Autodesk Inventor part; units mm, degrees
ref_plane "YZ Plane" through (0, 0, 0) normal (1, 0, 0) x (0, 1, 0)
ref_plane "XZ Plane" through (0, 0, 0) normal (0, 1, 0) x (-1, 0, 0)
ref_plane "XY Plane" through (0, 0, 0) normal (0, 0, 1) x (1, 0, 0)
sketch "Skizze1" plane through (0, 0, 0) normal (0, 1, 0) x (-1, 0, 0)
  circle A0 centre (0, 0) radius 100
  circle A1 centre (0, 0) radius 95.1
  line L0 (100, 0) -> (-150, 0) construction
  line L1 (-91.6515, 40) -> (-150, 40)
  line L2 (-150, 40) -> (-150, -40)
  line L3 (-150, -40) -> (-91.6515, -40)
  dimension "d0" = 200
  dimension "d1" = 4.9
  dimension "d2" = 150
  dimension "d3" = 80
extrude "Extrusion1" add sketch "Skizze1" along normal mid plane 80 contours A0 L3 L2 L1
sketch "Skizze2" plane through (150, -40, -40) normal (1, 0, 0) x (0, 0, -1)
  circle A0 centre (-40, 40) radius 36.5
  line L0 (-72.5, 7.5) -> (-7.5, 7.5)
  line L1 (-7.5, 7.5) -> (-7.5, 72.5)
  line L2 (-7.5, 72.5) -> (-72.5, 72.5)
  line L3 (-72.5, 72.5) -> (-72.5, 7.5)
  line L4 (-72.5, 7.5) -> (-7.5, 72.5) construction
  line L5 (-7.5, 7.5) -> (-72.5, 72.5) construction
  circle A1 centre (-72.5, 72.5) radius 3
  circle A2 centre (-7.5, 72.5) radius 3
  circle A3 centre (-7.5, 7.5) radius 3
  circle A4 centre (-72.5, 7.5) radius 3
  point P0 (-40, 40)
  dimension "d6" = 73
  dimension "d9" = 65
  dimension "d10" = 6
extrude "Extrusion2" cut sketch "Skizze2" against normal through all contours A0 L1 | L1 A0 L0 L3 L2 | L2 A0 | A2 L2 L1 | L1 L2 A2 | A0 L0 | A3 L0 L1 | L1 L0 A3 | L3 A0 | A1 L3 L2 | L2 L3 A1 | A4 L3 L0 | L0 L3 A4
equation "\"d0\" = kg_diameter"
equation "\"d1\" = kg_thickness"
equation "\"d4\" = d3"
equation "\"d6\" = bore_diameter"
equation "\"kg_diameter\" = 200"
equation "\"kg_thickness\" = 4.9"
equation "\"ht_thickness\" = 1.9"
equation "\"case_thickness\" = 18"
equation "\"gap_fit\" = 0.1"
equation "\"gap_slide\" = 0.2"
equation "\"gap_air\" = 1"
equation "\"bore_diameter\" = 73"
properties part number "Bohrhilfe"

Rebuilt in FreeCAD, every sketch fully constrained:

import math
import FreeCAD as App
import Part
import Sketcher

V = App.Vector
Q = App.Units.Quantity

doc = App.newDocument("Part")
body = doc.addObject("PartDesign::Body", "Body")

sketch1 = body.newObject("Sketcher::SketchObject", "Sketch")
sketch1.AttachmentSupport = (doc.getObject("XZ_Plane"), [""])
sketch1.MapMode = "FlatFace"
sketch1.addGeometry([
    Part.ArcOfCircle(Part.Circle(V(0, 0, 0), V(0, 0, 1), 100), math.radians(-24), math.radians(24)),
    Part.LineSegment(V(92, 40, 0), V(150, 40, 0)),
    Part.LineSegment(V(150, 40, 0), V(150, -40, 0)),
    Part.LineSegment(V(150, -40, 0), V(92, -40, 0)),
], False)
sketch1.addConstraint([
    Sketcher.Constraint("Coincident", 0, 2, 1, 1),
    Sketcher.Constraint("Coincident", 1, 2, 2, 1),
    Sketcher.Constraint("Coincident", 2, 2, 3, 1),
    Sketcher.Constraint("Coincident", 3, 2, 0, 1),
    Sketcher.Constraint("Horizontal", 1),
    Sketcher.Constraint("Vertical", 2),
    Sketcher.Constraint("Horizontal", 3),
    Sketcher.Constraint("Coincident", 0, 3, -1, 1),
    Sketcher.Constraint("Vertical", 0, 2, 3, 2),
    Sketcher.Constraint("Radius", 0, Q("100 mm")),
    Sketcher.Constraint("DistanceY", 2, 2, 2, 1, Q("80 mm")),
    Sketcher.Constraint("DistanceX", -1, 1, 1, 2, Q("150 mm")),
])
pad1 = body.newObject("PartDesign::Pad", "Pad")
pad1.Profile = sketch1
pad1.Length = 80
pad1.Midplane = True

sketch2 = body.newObject("Sketcher::SketchObject", "Sketch001")
sketch2.AttachmentSupport = (doc.getObject("YZ_Plane"), [""])
sketch2.MapMode = "FlatFace"
sketch2.AttachmentOffset = App.Placement(V(0, 0, 150), App.Rotation())
sketch2.addGeometry([
    Part.Circle(V(0, 0, 0), V(0, 0, 1), 36.5),
    Part.Circle(V(32.5, -32.5, 0), V(0, 0, 1), 3),
    Part.Circle(V(-32.5, -32.5, 0), V(0, 0, 1), 3),
    Part.Circle(V(32.5, 32.5, 0), V(0, 0, 1), 3),
    Part.Circle(V(-32.5, 32.5, 0), V(0, 0, 1), 3),
], False)
sketch2.addConstraint([
    Sketcher.Constraint("Coincident", 0, 3, -1, 1),
    Sketcher.Constraint("Equal", 1, 2),
    Sketcher.Constraint("Equal", 2, 3),
    Sketcher.Constraint("Equal", 3, 4),
    Sketcher.Constraint("Symmetric", 2, 3, 3, 3, -1, 1),
    Sketcher.Constraint("Symmetric", 1, 3, 4, 3, -1, 1),
    Sketcher.Constraint("Symmetric", 1, 3, 2, 3, -2),
    Sketcher.Constraint("Diameter", 0, Q("73 mm")),
    Sketcher.Constraint("Diameter", 1, Q("6 mm")),
    Sketcher.Constraint("DistanceX", 2, 3, 1, 3, Q("65 mm")),
    Sketcher.Constraint("DistanceY", 1, 3, 3, 3, Q("65 mm")),
])
pocket1 = body.newObject("PartDesign::Pocket", "Pocket")
pocket1.Profile = sketch2
pocket1.Type = "ThroughAll"

doc.recompute()
